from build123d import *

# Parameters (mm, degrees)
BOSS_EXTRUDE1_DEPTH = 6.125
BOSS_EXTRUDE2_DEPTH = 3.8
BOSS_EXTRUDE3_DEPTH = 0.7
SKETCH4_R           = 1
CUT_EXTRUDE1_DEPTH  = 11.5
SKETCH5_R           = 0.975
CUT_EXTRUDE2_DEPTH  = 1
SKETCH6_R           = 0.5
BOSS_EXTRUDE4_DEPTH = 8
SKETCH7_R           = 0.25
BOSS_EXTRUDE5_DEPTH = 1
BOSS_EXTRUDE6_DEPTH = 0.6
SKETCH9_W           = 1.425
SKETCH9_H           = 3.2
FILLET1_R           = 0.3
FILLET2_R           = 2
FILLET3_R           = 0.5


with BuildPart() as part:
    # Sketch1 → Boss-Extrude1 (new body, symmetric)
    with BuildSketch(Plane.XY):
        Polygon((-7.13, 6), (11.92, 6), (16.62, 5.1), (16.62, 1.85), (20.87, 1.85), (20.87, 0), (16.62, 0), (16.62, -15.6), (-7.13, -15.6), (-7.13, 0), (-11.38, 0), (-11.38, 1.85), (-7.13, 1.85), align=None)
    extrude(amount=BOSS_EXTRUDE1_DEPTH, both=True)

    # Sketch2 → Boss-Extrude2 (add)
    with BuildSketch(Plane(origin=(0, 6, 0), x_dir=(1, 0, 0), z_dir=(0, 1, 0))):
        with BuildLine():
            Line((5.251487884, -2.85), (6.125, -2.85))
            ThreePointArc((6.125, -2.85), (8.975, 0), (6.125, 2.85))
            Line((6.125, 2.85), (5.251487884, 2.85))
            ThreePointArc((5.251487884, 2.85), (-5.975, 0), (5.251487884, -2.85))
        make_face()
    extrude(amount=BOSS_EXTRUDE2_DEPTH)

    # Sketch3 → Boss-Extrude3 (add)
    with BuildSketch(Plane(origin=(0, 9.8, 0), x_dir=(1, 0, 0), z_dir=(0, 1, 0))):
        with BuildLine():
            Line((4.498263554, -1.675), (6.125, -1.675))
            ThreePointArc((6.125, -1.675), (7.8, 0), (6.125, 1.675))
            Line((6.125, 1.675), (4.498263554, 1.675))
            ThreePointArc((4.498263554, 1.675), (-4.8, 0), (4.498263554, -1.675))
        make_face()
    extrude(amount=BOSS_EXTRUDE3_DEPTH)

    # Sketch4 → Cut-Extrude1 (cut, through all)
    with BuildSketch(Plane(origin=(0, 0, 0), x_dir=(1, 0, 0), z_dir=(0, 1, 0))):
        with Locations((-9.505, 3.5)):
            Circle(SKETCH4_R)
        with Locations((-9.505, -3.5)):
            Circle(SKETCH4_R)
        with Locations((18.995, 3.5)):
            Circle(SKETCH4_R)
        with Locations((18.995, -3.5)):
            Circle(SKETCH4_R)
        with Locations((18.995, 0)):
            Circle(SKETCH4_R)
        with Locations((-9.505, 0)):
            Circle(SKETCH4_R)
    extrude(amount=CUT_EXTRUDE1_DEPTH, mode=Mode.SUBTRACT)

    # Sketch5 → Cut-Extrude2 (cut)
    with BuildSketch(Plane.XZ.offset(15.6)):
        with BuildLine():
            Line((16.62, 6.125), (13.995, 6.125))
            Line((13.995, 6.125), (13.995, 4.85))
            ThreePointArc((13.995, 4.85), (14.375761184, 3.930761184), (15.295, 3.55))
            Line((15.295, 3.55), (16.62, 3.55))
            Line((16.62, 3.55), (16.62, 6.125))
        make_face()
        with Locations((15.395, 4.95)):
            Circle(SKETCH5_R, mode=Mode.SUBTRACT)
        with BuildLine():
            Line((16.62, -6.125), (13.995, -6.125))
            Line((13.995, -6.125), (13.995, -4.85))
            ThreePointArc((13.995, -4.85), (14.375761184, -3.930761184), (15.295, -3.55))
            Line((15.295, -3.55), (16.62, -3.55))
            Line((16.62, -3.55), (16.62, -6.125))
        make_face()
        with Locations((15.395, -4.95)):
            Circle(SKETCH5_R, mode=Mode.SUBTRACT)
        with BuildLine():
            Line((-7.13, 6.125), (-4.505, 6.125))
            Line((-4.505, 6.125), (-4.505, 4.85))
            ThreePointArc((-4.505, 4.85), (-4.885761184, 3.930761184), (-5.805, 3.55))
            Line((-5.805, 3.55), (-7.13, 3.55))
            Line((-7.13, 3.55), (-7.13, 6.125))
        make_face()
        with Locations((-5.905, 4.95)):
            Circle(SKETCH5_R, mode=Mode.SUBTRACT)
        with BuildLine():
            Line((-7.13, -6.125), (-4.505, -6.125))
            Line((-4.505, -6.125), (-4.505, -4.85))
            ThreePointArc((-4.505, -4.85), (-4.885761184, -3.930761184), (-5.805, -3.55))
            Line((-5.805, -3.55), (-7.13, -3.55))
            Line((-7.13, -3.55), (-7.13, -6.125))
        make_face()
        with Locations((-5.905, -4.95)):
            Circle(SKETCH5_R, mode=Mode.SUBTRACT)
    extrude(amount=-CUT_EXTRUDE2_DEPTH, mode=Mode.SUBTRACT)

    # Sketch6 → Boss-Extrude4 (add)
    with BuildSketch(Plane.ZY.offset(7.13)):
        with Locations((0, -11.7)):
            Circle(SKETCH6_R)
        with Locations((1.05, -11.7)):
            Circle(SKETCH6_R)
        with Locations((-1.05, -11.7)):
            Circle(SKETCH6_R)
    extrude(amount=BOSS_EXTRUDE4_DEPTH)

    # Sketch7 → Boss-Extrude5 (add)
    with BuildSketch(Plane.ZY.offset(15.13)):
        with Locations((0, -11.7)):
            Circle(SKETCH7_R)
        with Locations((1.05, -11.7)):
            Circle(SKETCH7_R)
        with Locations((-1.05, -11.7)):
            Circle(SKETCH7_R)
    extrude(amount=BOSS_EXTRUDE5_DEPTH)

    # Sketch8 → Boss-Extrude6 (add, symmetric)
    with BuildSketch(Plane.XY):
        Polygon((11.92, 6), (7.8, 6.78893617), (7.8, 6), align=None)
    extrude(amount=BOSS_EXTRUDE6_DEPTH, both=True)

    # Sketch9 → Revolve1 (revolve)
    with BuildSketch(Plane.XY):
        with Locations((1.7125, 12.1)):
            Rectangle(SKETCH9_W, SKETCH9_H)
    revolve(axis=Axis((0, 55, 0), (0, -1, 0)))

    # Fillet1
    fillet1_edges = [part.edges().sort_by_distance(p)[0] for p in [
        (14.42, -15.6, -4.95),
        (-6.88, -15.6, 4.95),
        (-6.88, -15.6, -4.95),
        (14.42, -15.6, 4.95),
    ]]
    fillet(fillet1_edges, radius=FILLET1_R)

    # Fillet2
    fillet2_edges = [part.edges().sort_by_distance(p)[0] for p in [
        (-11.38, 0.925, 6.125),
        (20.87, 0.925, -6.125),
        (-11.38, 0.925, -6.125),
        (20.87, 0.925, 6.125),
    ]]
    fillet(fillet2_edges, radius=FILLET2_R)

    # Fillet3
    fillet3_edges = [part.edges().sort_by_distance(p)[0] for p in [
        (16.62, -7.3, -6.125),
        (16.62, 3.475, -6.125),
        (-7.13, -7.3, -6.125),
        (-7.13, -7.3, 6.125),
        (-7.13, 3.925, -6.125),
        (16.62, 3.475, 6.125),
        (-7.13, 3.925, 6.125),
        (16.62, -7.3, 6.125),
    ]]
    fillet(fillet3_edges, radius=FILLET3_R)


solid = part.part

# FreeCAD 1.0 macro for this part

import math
import FreeCAD as App
import Part
import Sketcher
from FreeCAD import Vector


def edges_at(feature, points):
    """Names of the edges that pass closest to the given points."""
    edges = feature.Shape.Edges
    near = lambda p: min(range(len(edges)), key=lambda i: edges[i].distToShape(Part.Vertex(*p))[0])
    return sorted({f"Edge{near(p) + 1}" for p in points})


def add_polygon(sketch, points):
    """Adds a closed chain of lines whose ends are joined by coincident constraints."""
    first, n = sketch.GeometryCount, len(points)
    for a, b in zip(points, points[1:] + points[:1]):
        sketch.addGeometry(Part.LineSegment(App.Vector(*a, 0), App.Vector(*b, 0)), False)
    for i in range(n):
        sketch.addConstraint(Sketcher.Constraint("Coincident", first + i, 2, first + (i + 1) % n, 1))

doc = App.newDocument("Part")
body = doc.addObject("PartDesign::Body", "Body")

# Sketch on XY plane
sketch1 = body.newObject("Sketcher::SketchObject", "Sketch")
sketch1.AttachmentSupport = (doc.getObject("XY_Plane"), [""])
sketch1.MapMode = "FlatFace"
add_polygon(sketch1, [(11.9, 6), (-7.1, 6), (-7.1, 1.9), (-11.4, 1.9), (-11.4, 0), (-7.1, 0), (-7.1, -15.6), (16.6, -15.6), (16.6, 0), (20.9, 0), (20.9, 1.9), (16.6, 1.9), (16.6, 5.1)])  # lines 0-12
sketch1.addConstraint([
    Sketcher.Constraint("Horizontal", 0),
    Sketcher.Constraint("Vertical", 1),
    Sketcher.Constraint("Horizontal", 2),
    Sketcher.Constraint("Vertical", 3),
    Sketcher.Constraint("Horizontal", 4),
    Sketcher.Constraint("Vertical", 5),
    Sketcher.Constraint("Horizontal", 6),
    Sketcher.Constraint("Vertical", 7),
    Sketcher.Constraint("Horizontal", 8),
    Sketcher.Constraint("Vertical", 9),
    Sketcher.Constraint("Horizontal", 10),
    Sketcher.Constraint("Vertical", 11),
    Sketcher.Constraint("PointOnObject", 3, 2, -1),
    Sketcher.Constraint("PointOnObject", 7, 2, -1),
    Sketcher.Constraint("Horizontal", 2, 2, 9, 2),
    Sketcher.Constraint("Vertical", 1, 2, 4, 2),
    Sketcher.Constraint("Vertical", 7, 2, 10, 2),
    Sketcher.Constraint("Equal", 4, 8),
    Sketcher.Constraint("DistanceY", 5, 2, 5, 1, 15.6),
    Sketcher.Constraint("DistanceY", -1, 1, 0, 2, 6.0),
    Sketcher.Constraint("DistanceX", 3, 2, 6, 2, 28.0),
    Sketcher.Constraint("DistanceX", 0, 2, 0, 1, 19.05),
    Sketcher.Constraint("DistanceX", 2, 2, 2, 1, 4.25),
    Sketcher.Constraint("DistanceY", 1, 2, 1, 1, 4.15),
    Sketcher.Constraint("DistanceY", 11, 1, 11, 2, 3.25),
    Sketcher.Constraint("DistanceX", 0, 2, -1, 1, 7.13),
])
pad1 = body.newObject("PartDesign::Pad", "Pad")
pad1.Profile = sketch1
pad1.Length = 12.25
pad1.Midplane = True

# Sketch on XZ plane
sketch2 = body.newObject("Sketcher::SketchObject", "Sketch001")
sketch2.AttachmentSupport = (doc.getObject("XZ_Plane"), [""])
sketch2.MapMode = "FlatFace"
sketch2.AttachmentOffset = App.Placement(Vector(0, 0, -6), App.Rotation())
sketch2.addGeometry([
    Part.LineSegment(Vector(5.3, 2.9, 0), Vector(6.1, 2.9, 0)),
    Part.ArcOfCircle(Part.Circle(Vector(6.1, 0, 0), Vector(0, 0, 1), 2.9), math.radians(-90), math.radians(90)),
    Part.LineSegment(Vector(6.1, -2.9, 0), Vector(5.3, -2.9, 0)),
    Part.ArcOfCircle(Part.Circle(Vector(0, 0, 0), Vector(0, 0, 1), 6), math.radians(28), math.radians(332)),
], False)
sketch2.addConstraint([
    Sketcher.Constraint("Tangent", 0, 2, 1, 2),
    Sketcher.Constraint("Tangent", 1, 1, 2, 1),
    Sketcher.Constraint("Coincident", 2, 2, 3, 2),
    Sketcher.Constraint("Coincident", 3, 1, 0, 1),
    Sketcher.Constraint("Horizontal", 0),
    Sketcher.Constraint("Horizontal", 2),
    Sketcher.Constraint("Coincident", 3, 3, -1, 1),
    Sketcher.Constraint("PointOnObject", 1, 3, -1),
    Sketcher.Constraint("Radius", 1, 2.85),
    Sketcher.Constraint("Radius", 3, 5.975),
    Sketcher.Constraint("DistanceX", -1, 1, 1, 3, 6.125),
])
pad2 = body.newObject("PartDesign::Pad", "Pad001")
pad2.Profile = sketch2
pad2.Length = 3.8
pad2.Reversed = True

# Sketch on XZ plane
sketch3 = body.newObject("Sketcher::SketchObject", "Sketch002")
sketch3.AttachmentSupport = (doc.getObject("XZ_Plane"), [""])
sketch3.MapMode = "FlatFace"
sketch3.AttachmentOffset = App.Placement(Vector(0, 0, -9.8), App.Rotation())
sketch3.addGeometry([
    Part.LineSegment(Vector(4.5, 1.7, 0), Vector(6.1, 1.7, 0)),
    Part.ArcOfCircle(Part.Circle(Vector(6.1, 0, 0), Vector(0, 0, 1), 1.7), math.radians(-90), math.radians(90)),
    Part.LineSegment(Vector(6.1, -1.7, 0), Vector(4.5, -1.7, 0)),
    Part.ArcOfCircle(Part.Circle(Vector(0, 0, 0), Vector(0, 0, 1), 4.8), math.radians(20), math.radians(340)),
], False)
sketch3.addConstraint([
    Sketcher.Constraint("Tangent", 0, 2, 1, 2),
    Sketcher.Constraint("Tangent", 1, 1, 2, 1),
    Sketcher.Constraint("Coincident", 2, 2, 3, 2),
    Sketcher.Constraint("Coincident", 3, 1, 0, 1),
    Sketcher.Constraint("Horizontal", 0),
    Sketcher.Constraint("Horizontal", 2),
    Sketcher.Constraint("Coincident", 3, 3, -1, 1),
    Sketcher.Constraint("PointOnObject", 1, 3, -1),
    Sketcher.Constraint("Radius", 3, 4.8),
    Sketcher.Constraint("Radius", 1, 1.675),
    Sketcher.Constraint("DistanceX", -1, 1, 1, 3, 6.125),
])
pad3 = body.newObject("PartDesign::Pad", "Pad002")
pad3.Profile = sketch3
pad3.Length = 0.7
pad3.Reversed = True

# Sketch on XZ plane
sketch4 = body.newObject("Sketcher::SketchObject", "Sketch003")
sketch4.AttachmentSupport = (doc.getObject("XZ_Plane"), [""])
sketch4.MapMode = "FlatFace"
sketch4.addGeometry([
    Part.Circle(Vector(-9.5, -3.5, 0), Vector(0, 0, 1), 1),  # 0
    Part.Circle(Vector(-9.5, 3.5, 0), Vector(0, 0, 1), 1),  # 1
    Part.Circle(Vector(19, -3.5, 0), Vector(0, 0, 1), 1),  # 2
    Part.Circle(Vector(19, 3.5, 0), Vector(0, 0, 1), 1),  # 3
    Part.Circle(Vector(19, 0, 0), Vector(0, 0, 1), 1),  # 4
    Part.Circle(Vector(-9.5, 0, 0), Vector(0, 0, 1), 1),  # 5
], False)
sketch4.addConstraint([
    Sketcher.Constraint("Equal", 0, 1),
    Sketcher.Constraint("Equal", 1, 2),
    Sketcher.Constraint("Equal", 2, 3),
    Sketcher.Constraint("Equal", 3, 4),
    Sketcher.Constraint("Equal", 4, 5),
    Sketcher.Constraint("Symmetric", 0, 3, 1, 3, -1),
    Sketcher.Constraint("Symmetric", 2, 3, 3, 3, -1),
    Sketcher.Constraint("PointOnObject", 4, 3, -1),
    Sketcher.Constraint("PointOnObject", 5, 3, -1),
    Sketcher.Constraint("Horizontal", 0, 3, 2, 3),
    Sketcher.Constraint("Vertical", 3, 3, 4, 3),
    Sketcher.Constraint("Vertical", 1, 3, 5, 3),
    Sketcher.Constraint("Diameter", 0, 2.0),
    Sketcher.Constraint("DistanceY", 0, 3, 1, 3, 7.0),
    Sketcher.Constraint("DistanceX", 0, 3, 2, 3, 28.5),
    Sketcher.Constraint("DistanceX", 0, 3, -1, 1, 9.505),
])
pocket1 = body.newObject("PartDesign::Pocket", "Pocket")
pocket1.Profile = sketch4
pocket1.Type = "ThroughAll"

# Sketch on XZ plane
sketch5 = body.newObject("Sketcher::SketchObject", "Sketch004")
sketch5.AttachmentSupport = (doc.getObject("XZ_Plane"), [""])
sketch5.MapMode = "FlatFace"
sketch5.AttachmentOffset = App.Placement(Vector(0, 0, 15.6), App.Rotation())
sketch5.addGeometry([
    Part.LineSegment(Vector(16.6, 6.1, 0), Vector(14, 6.1, 0)),  # 0
    Part.LineSegment(Vector(14, 6.1, 0), Vector(14, 4.8, 0)),  # 1
    Part.ArcOfCircle(Part.Circle(Vector(15.3, 4.8, 0), Vector(0, 0, 1), 1.3), math.radians(180), math.radians(270)),  # 2
    Part.LineSegment(Vector(15.3, 3.5, 0), Vector(16.6, 3.5, 0)),  # 3
    Part.LineSegment(Vector(16.6, 3.5, 0), Vector(16.6, 6.1, 0)),  # 4
    Part.Circle(Vector(15.4, 5, 0), Vector(0, 0, 1), 1),  # 5
    Part.LineSegment(Vector(14, -6.1, 0), Vector(16.6, -6.1, 0)),  # 6
    Part.LineSegment(Vector(16.6, -6.1, 0), Vector(16.6, -3.5, 0)),  # 7
    Part.LineSegment(Vector(16.6, -3.5, 0), Vector(15.3, -3.5, 0)),  # 8
    Part.ArcOfCircle(Part.Circle(Vector(15.3, -4.8, 0), Vector(0, 0, 1), 1.3), math.radians(90), math.radians(180)),  # 9
    Part.LineSegment(Vector(14, -4.8, 0), Vector(14, -6.1, 0)),  # 10
    Part.Circle(Vector(15.4, -5, 0), Vector(0, 0, 1), 1),  # 11
    Part.LineSegment(Vector(-4.5, 6.1, 0), Vector(-7.1, 6.1, 0)),  # 12
    Part.LineSegment(Vector(-7.1, 6.1, 0), Vector(-7.1, 3.5, 0)),  # 13
    Part.LineSegment(Vector(-7.1, 3.5, 0), Vector(-5.8, 3.5, 0)),  # 14
    Part.ArcOfCircle(Part.Circle(Vector(-5.8, 4.8, 0), Vector(0, 0, 1), 1.3), math.radians(-90), math.radians(0)),  # 15
    Part.LineSegment(Vector(-4.5, 4.8, 0), Vector(-4.5, 6.1, 0)),  # 16
    Part.Circle(Vector(-5.9, 5, 0), Vector(0, 0, 1), 1),  # 17
    Part.LineSegment(Vector(-7.1, -6.1, 0), Vector(-4.5, -6.1, 0)),  # 18
    Part.LineSegment(Vector(-4.5, -6.1, 0), Vector(-4.5, -4.8, 0)),  # 19
    Part.ArcOfCircle(Part.Circle(Vector(-5.8, -4.8, 0), Vector(0, 0, 1), 1.3), math.radians(0), math.radians(90)),  # 20
    Part.LineSegment(Vector(-5.8, -3.5, 0), Vector(-7.1, -3.5, 0)),  # 21
    Part.LineSegment(Vector(-7.1, -3.5, 0), Vector(-7.1, -6.1, 0)),  # 22
    Part.Circle(Vector(-5.9, -5, 0), Vector(0, 0, 1), 1),  # 23
], False)
sketch5.addConstraint([
    Sketcher.Constraint("Coincident", 0, 2, 1, 1),
    Sketcher.Constraint("Tangent", 1, 2, 2, 1),
    Sketcher.Constraint("Tangent", 2, 2, 3, 1),
    Sketcher.Constraint("Coincident", 3, 2, 4, 1),
    Sketcher.Constraint("Coincident", 4, 2, 0, 1),
    Sketcher.Constraint("Coincident", 6, 2, 7, 1),
    Sketcher.Constraint("Coincident", 7, 2, 8, 1),
    Sketcher.Constraint("Tangent", 8, 2, 9, 1),
    Sketcher.Constraint("Tangent", 9, 2, 10, 1),
    Sketcher.Constraint("Coincident", 10, 2, 6, 1),
    Sketcher.Constraint("Coincident", 12, 2, 13, 1),
    Sketcher.Constraint("Coincident", 13, 2, 14, 1),
    Sketcher.Constraint("Tangent", 14, 2, 15, 1),
    Sketcher.Constraint("Tangent", 15, 2, 16, 1),
    Sketcher.Constraint("Coincident", 16, 2, 12, 1),
    Sketcher.Constraint("Coincident", 18, 2, 19, 1),
    Sketcher.Constraint("Tangent", 19, 2, 20, 1),
    Sketcher.Constraint("Tangent", 20, 2, 21, 1),
    Sketcher.Constraint("Coincident", 21, 2, 22, 1),
    Sketcher.Constraint("Coincident", 22, 2, 18, 1),
    Sketcher.Constraint("Horizontal", 0),
    Sketcher.Constraint("Vertical", 1),
    Sketcher.Constraint("Horizontal", 3),
    Sketcher.Constraint("Vertical", 4),
    Sketcher.Constraint("Horizontal", 6),
    Sketcher.Constraint("Vertical", 7),
    Sketcher.Constraint("Horizontal", 8),
    Sketcher.Constraint("Vertical", 10),
    Sketcher.Constraint("Horizontal", 12),
    Sketcher.Constraint("Vertical", 13),
    Sketcher.Constraint("Horizontal", 14),
    Sketcher.Constraint("Vertical", 16),
    Sketcher.Constraint("Horizontal", 18),
    Sketcher.Constraint("Vertical", 19),
    Sketcher.Constraint("Horizontal", 21),
    Sketcher.Constraint("Vertical", 22),
    Sketcher.Constraint("Equal", 2, 9),
    Sketcher.Constraint("Equal", 5, 11),
    Sketcher.Constraint("Equal", 9, 15),
    Sketcher.Constraint("Equal", 11, 17),
    Sketcher.Constraint("Equal", 15, 20),
    Sketcher.Constraint("Equal", 17, 23),
    Sketcher.Constraint("Symmetric", 2, 3, 9, 3, -1),
    Sketcher.Constraint("Symmetric", 5, 3, 11, 3, -1),
    Sketcher.Constraint("Symmetric", 15, 3, 20, 3, -1),
    Sketcher.Constraint("Symmetric", 17, 3, 23, 3, -1),
    Sketcher.Constraint("Symmetric", 4, 2, 6, 2, -1),
    Sketcher.Constraint("Symmetric", 12, 2, 22, 2, -1),
    Sketcher.Constraint("Horizontal", 2, 3, 15, 3),
    Sketcher.Constraint("Horizontal", 5, 3, 17, 3),
    Sketcher.Constraint("Horizontal", 4, 2, 12, 2),
    Sketcher.Constraint("Equal", 6, 12),
    Sketcher.Constraint("Radius", 2, 1.3),
    Sketcher.Constraint("Diameter", 5, 1.95),
    Sketcher.Constraint("DistanceX", 2, 3, 5, 3, 0.1),
    Sketcher.Constraint("DistanceY", 2, 3, 5, 3, 0.1),
    Sketcher.Constraint("DistanceY", 9, 3, 2, 3, 9.7),
    Sketcher.Constraint("DistanceX", 15, 3, 2, 3, 21.1),
    Sketcher.Constraint("DistanceX", 17, 3, 15, 3, 0.1),
    Sketcher.Constraint("DistanceX", 0, 2, 0, 1, 2.625),
    Sketcher.Constraint("DistanceY", 1, 2, 1, 1, 1.275),
    Sketcher.Constraint("DistanceX", -1, 1, 3, 2, 16.62),
])
pocket2 = body.newObject("PartDesign::Pocket", "Pocket001")
pocket2.Profile = sketch5
pocket2.Length = 1

# Sketch on YZ plane
sketch6 = body.newObject("Sketcher::SketchObject", "Sketch005")
sketch6.AttachmentSupport = (doc.getObject("YZ_Plane"), [""])
sketch6.MapMode = "FlatFace"
sketch6.AttachmentOffset = App.Placement(Vector(0, 0, -7.13), App.Rotation())
sketch6.addGeometry([
    Part.Circle(Vector(-11.7, 0, 0), Vector(0, 0, 1), 0.5),
    Part.Circle(Vector(-11.7, 1.1, 0), Vector(0, 0, 1), 0.5),
    Part.Circle(Vector(-11.7, -1.1, 0), Vector(0, 0, 1), 0.5),
], False)
sketch6.addConstraint([
    Sketcher.Constraint("Equal", 0, 1),
    Sketcher.Constraint("Equal", 1, 2),
    Sketcher.Constraint("Symmetric", 1, 3, 2, 3, -1),
    Sketcher.Constraint("PointOnObject", 0, 3, -1),
    Sketcher.Constraint("Vertical", 0, 3, 1, 3),
    Sketcher.Constraint("Diameter", 0, 1.0),
    Sketcher.Constraint("DistanceX", 0, 3, -1, 1, 11.7),
    Sketcher.Constraint("DistanceY", 2, 3, 1, 3, 2.1),
])
pad4 = body.newObject("PartDesign::Pad", "Pad003")
pad4.Profile = sketch6
pad4.Length = 8
pad4.Reversed = True

# Sketch on YZ plane
sketch7 = body.newObject("Sketcher::SketchObject", "Sketch006")
sketch7.AttachmentSupport = (doc.getObject("YZ_Plane"), [""])
sketch7.MapMode = "FlatFace"
sketch7.AttachmentOffset = App.Placement(Vector(0, 0, -15.13), App.Rotation())
sketch7.addGeometry([
    Part.Circle(Vector(-11.7, 0, 0), Vector(0, 0, 1), 0.25),
    Part.Circle(Vector(-11.7, 1.05, 0), Vector(0, 0, 1), 0.25),
    Part.Circle(Vector(-11.7, -1.05, 0), Vector(0, 0, 1), 0.25),
], False)
sketch7.addConstraint([
    Sketcher.Constraint("Equal", 0, 1),
    Sketcher.Constraint("Equal", 1, 2),
    Sketcher.Constraint("Symmetric", 1, 3, 2, 3, -1),
    Sketcher.Constraint("PointOnObject", 0, 3, -1),
    Sketcher.Constraint("Vertical", 0, 3, 1, 3),
    Sketcher.Constraint("Diameter", 0, 0.5),
    Sketcher.Constraint("DistanceX", 0, 3, -1, 1, 11.7),
    Sketcher.Constraint("DistanceY", 2, 3, 1, 3, 2.1),
])
pad5 = body.newObject("PartDesign::Pad", "Pad004")
pad5.Profile = sketch7
pad5.Length = 1
pad5.Reversed = True

# Sketch on XY plane
sketch8 = body.newObject("Sketcher::SketchObject", "Sketch007")
sketch8.AttachmentSupport = (doc.getObject("XY_Plane"), [""])
sketch8.MapMode = "FlatFace"
add_polygon(sketch8, [(11.9, 6), (7.8, 6.8), (7.8, 6)])  # lines 0-2
sketch8.addConstraint([
    Sketcher.Constraint("Vertical", 1),
    Sketcher.Constraint("Horizontal", 2),
    Sketcher.Constraint("DistanceY", -1, 1, 1, 2, 6.0),
    Sketcher.Constraint("DistanceX", 2, 1, 2, 2, 4.12),
    Sketcher.Constraint("DistanceX", -1, 1, 0, 2, 7.8),
    Sketcher.Constraint("DistanceY", 1, 2, 1, 1, 0.788936),
])
pad6 = body.newObject("PartDesign::Pad", "Pad005")
pad6.Profile = sketch8
pad6.Length = 1.2
pad6.Midplane = True

# Sketch on XY plane
sketch9 = body.newObject("Sketcher::SketchObject", "Sketch008")
sketch9.AttachmentSupport = (doc.getObject("XY_Plane"), [""])
sketch9.MapMode = "FlatFace"
add_polygon(sketch9, [(1, 13.7), (1, 10.5), (2.4, 10.5), (2.4, 13.7)])  # lines 0-3
sketch9.addConstraint([
    Sketcher.Constraint("Vertical", 0),
    Sketcher.Constraint("Horizontal", 1),
    Sketcher.Constraint("Vertical", 2),
    Sketcher.Constraint("Horizontal", 3),
    Sketcher.Constraint("DistanceY", 0, 2, 0, 1, 3.2),
    Sketcher.Constraint("DistanceX", -1, 1, 0, 2, 1.0),
    Sketcher.Constraint("DistanceY", -1, 1, 0, 2, 10.5),
    Sketcher.Constraint("DistanceX", 1, 1, 1, 2, 1.425),
])
revolution = body.newObject("PartDesign::Revolution", "Revolution")
revolution.Profile = sketch9
revolution.ReferenceAxis = (sketch9, ["V_Axis"])
revolution.Angle = 360
doc.recompute()

fillet = body.newObject("PartDesign::Fillet", "Fillet")
fillet.Base = (revolution, edges_at(revolution, [
    (14.42, -15.6, -4.95),
    (-6.88, -15.6, 4.95),
    (-6.88, -15.6, -4.95),
    (14.42, -15.6, 4.95),
]))
fillet.Radius = 0.3
doc.recompute()

fillet2 = body.newObject("PartDesign::Fillet", "Fillet001")
fillet2.Base = (fillet, edges_at(fillet, [
    (-11.38, 0.925, 6.125),
    (20.87, 0.925, -6.125),
    (-11.38, 0.925, -6.125),
    (20.87, 0.925, 6.125),
]))
fillet2.Radius = 2
doc.recompute()

fillet3 = body.newObject("PartDesign::Fillet", "Fillet002")
fillet3.Base = (fillet2, edges_at(fillet2, [
    (16.62, -7.3, -6.125),
    (16.62, 3.475, -6.125),
    (-7.13, -7.3, -6.125),
    (-7.13, -7.3, 6.125),
    (-7.13, 3.925, -6.125),
    (16.62, 3.475, 6.125),
    (-7.13, 3.925, 6.125),
    (16.62, -7.3, 6.125),
]))
fillet3.Radius = 0.5

doc.recompute()
